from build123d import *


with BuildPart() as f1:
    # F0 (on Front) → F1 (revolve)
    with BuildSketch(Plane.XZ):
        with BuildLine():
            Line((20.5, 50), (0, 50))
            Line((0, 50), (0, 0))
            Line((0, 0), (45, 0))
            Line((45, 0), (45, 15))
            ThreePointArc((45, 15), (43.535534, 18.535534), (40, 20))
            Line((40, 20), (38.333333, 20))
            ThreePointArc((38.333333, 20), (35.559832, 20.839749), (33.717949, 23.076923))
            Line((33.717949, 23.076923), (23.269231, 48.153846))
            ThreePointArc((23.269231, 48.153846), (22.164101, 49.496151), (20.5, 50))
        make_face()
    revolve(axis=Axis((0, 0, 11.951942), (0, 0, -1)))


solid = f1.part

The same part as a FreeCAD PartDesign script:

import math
import FreeCAD as App
import Part
import Sketcher
from FreeCAD import Vector

doc = App.newDocument("Part")
params = doc.addObject("Spreadsheet::Sheet", "Params")
for row, (alias, value) in enumerate([
    ("sketch1_radius", "5 mm"),
    ("sketch1_radius2", "2.999999 mm"),
    ("sketch1_width", "45 mm"),
    ("sketch1_height", "50 mm"),
    ("sketch1_height2", "15 mm"),
    ("revolution_angle", "360 deg"),
], start=1):
    params.set(f"A{row}", alias)
    params.set(f"B{row}", "=" + value)
    params.setAlias(f"B{row}", alias)

body = doc.addObject("PartDesign::Body", "Body")

sketch1 = doc.addObject("Sketcher::SketchObject", "Sketch")
body.addObject(sketch1)
sketch1.AttachmentSupport = (doc.XZ_Plane, [""])
sketch1.MapMode = "FlatFace"
sketch1.addGeometry([
    Part.LineSegment(Vector(20.5, 50, 0), Vector(0, 50, 0)),
    Part.LineSegment(Vector(0, 50, 0), Vector(0, 0, 0)),
    Part.LineSegment(Vector(0, 0, 0), Vector(45, 0, 0)),
    Part.LineSegment(Vector(45, 0, 0), Vector(45, 15, 0)),
    Part.ArcOfCircle(Part.Circle(Vector(40, 15, 0), Vector(0, 0, 1), 5), math.radians(0), math.radians(90)),
    Part.LineSegment(Vector(40, 20, 0), Vector(38.3, 20, 0)),
    Part.ArcOfCircle(Part.Circle(Vector(38.3, 25, 0), Vector(0, 0, 1), 5), math.radians(-157), math.radians(-90)),
    Part.LineSegment(Vector(33.7, 23.1, 0), Vector(23.3, 48.2, 0)),
    Part.ArcOfCircle(Part.Circle(Vector(20.5, 47, 0), Vector(0, 0, 1), 3), math.radians(23), math.radians(90)),
], False)
sketch1.addConstraint([
    Sketcher.Constraint("Coincident", 0, 2, 1, 1),
    Sketcher.Constraint("Coincident", 1, 2, 2, 1),
    Sketcher.Constraint("Coincident", 2, 2, 3, 1),
    Sketcher.Constraint("Tangent", 3, 2, 4, 1),
    Sketcher.Constraint("Tangent", 4, 2, 5, 1),
    Sketcher.Constraint("Tangent", 5, 2, 6, 2),
    Sketcher.Constraint("Tangent", 6, 1, 7, 1),
    Sketcher.Constraint("Tangent", 7, 2, 8, 1),
    Sketcher.Constraint("Tangent", 8, 2, 0, 1),
    Sketcher.Constraint("Horizontal", 0),
    Sketcher.Constraint("Vertical", 1),
    Sketcher.Constraint("Horizontal", 2),
    Sketcher.Constraint("Vertical", 3),
    Sketcher.Constraint("Horizontal", 5),
    Sketcher.Constraint("Coincident", 1, 2, -1, 1),
    Sketcher.Constraint("Equal", 4, 6),
    Sketcher.Constraint("Radius", 4, 5.0),
    Sketcher.Constraint("Radius", 8, 2.999999),
    Sketcher.Constraint("DistanceX", 2, 1, 2, 2, 45.0),
    Sketcher.Constraint("DistanceY", 1, 2, 1, 1, 50.0),
    Sketcher.Constraint("DistanceY", 3, 1, 3, 2, 15.0),
    Sketcher.Constraint("DistanceX", 0, 2, 0, 1, 20.5),
    Sketcher.Constraint("DistanceX", 5, 2, 5, 1, 1.666667),
])
sketch1.setExpression("Constraints[16]", "Params.sketch1_radius")
sketch1.setExpression("Constraints[17]", "Params.sketch1_radius2")
sketch1.setExpression("Constraints[18]", "Params.sketch1_width")
sketch1.setExpression("Constraints[19]", "Params.sketch1_height")
sketch1.setExpression("Constraints[20]", "Params.sketch1_height2")
revolution = doc.addObject("PartDesign::Revolution", "Revolution")
body.addObject(revolution)
revolution.Profile = sketch1
revolution.ReferenceAxis = (sketch1, ["V_Axis"])
revolution.setExpression("Angle", "Params.revolution_angle")

doc.recompute()
